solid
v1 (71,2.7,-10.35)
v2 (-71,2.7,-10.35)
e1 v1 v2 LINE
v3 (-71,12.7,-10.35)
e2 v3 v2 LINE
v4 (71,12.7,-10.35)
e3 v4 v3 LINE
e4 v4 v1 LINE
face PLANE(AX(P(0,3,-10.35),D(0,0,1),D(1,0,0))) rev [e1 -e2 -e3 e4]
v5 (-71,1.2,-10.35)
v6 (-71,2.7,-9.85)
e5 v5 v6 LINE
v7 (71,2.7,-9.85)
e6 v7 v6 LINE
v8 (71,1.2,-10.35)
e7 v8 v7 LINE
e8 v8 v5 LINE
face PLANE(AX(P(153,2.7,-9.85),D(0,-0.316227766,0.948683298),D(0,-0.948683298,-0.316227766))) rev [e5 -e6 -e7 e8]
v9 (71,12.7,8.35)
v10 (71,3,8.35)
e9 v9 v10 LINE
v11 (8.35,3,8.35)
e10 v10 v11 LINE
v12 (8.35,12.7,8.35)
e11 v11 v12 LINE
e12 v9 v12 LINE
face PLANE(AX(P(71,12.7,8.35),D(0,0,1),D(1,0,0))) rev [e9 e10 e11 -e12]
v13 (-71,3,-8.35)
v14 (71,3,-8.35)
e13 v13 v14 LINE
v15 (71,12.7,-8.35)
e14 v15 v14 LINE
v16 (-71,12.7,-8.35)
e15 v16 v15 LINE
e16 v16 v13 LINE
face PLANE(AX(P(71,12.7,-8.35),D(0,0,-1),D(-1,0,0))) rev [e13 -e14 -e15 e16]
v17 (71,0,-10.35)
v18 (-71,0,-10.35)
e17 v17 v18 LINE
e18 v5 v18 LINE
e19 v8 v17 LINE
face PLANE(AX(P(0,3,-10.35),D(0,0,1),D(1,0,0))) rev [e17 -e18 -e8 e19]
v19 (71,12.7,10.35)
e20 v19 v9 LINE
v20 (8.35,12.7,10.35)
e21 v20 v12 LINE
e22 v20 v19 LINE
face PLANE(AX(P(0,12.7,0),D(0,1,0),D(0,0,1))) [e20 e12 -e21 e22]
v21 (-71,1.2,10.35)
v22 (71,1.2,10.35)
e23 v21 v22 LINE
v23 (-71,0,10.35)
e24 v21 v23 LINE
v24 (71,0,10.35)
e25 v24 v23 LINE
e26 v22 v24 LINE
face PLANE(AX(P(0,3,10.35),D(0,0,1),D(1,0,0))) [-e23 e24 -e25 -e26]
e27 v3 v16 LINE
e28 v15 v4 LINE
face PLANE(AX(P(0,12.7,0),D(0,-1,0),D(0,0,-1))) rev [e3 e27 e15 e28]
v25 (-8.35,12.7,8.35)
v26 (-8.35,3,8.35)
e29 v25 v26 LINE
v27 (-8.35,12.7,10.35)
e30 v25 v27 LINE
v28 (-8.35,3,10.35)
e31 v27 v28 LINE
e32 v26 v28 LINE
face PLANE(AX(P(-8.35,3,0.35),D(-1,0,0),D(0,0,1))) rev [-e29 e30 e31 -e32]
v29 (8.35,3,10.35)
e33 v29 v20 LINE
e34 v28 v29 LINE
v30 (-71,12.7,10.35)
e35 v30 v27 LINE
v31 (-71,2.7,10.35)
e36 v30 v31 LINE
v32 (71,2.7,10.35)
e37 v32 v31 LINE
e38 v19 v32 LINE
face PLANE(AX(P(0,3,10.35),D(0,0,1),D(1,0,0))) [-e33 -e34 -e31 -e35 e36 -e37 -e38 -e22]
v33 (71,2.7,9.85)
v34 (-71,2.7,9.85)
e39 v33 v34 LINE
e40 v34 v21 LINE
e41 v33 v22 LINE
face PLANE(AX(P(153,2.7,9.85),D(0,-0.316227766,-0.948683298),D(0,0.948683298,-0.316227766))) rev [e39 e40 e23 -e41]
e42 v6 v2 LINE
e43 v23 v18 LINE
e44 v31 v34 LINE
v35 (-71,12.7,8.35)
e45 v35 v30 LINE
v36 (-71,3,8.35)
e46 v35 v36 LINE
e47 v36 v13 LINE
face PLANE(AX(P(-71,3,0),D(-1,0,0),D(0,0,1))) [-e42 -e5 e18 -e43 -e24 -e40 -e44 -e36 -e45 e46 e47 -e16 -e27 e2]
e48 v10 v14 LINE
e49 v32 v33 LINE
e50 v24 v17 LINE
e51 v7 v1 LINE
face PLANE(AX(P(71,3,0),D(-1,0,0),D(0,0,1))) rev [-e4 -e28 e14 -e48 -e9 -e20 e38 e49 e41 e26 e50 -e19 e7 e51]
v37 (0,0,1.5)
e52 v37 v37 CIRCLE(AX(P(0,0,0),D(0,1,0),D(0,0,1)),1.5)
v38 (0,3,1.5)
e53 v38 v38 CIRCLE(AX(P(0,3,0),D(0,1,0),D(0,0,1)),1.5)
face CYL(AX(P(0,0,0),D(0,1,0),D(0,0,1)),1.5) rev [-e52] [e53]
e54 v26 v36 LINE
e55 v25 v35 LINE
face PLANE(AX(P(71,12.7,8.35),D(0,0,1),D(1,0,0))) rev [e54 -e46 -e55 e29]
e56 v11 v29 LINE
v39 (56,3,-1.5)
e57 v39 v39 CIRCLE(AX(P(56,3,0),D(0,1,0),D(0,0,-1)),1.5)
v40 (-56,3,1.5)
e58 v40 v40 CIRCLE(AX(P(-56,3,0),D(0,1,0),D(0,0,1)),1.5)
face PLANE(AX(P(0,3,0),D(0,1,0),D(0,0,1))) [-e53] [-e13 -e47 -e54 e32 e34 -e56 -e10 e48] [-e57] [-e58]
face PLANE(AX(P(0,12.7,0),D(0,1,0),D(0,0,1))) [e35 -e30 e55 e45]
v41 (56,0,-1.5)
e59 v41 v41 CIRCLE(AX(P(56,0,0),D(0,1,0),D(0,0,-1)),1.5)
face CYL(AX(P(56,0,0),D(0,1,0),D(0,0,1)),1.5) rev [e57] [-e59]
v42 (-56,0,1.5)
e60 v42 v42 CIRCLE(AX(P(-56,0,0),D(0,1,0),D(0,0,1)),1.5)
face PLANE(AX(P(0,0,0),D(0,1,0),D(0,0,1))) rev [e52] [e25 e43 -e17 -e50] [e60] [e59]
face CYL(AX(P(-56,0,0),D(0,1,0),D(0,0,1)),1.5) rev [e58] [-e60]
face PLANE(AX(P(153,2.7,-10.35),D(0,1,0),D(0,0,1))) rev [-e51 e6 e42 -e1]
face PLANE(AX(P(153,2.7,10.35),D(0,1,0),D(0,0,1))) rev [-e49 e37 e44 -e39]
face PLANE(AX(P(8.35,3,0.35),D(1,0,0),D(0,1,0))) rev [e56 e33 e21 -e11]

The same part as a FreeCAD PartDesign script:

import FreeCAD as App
import Part
import Sketcher
from FreeCAD import Vector
Q = App.Units.Quantity

doc = App.newDocument("Part")
body = doc.addObject("PartDesign::Body", "Body")

# Sketch on XZ plane
sketch1 = body.newObject("Sketcher::SketchObject", "Sketch")
sketch1.AttachmentSupport = (doc.getObject("XZ_Plane"), [""])
sketch1.MapMode = "FlatFace"
sketch1.addGeometry([
    Part.LineSegment(Vector(-71, -10.35, 0), Vector(-71, 10.35, 0)),
    Part.LineSegment(Vector(-71, 10.35, 0), Vector(71, 10.35, 0)),
    Part.LineSegment(Vector(71, 10.35, 0), Vector(71, -10.35, 0)),
    Part.LineSegment(Vector(71, -10.35, 0), Vector(-71, -10.35, 0)),
], False)
sketch1.addConstraint([
    Sketcher.Constraint("Coincident", 0, 2, 1, 1),
    Sketcher.Constraint("Coincident", 1, 2, 2, 1),
    Sketcher.Constraint("Coincident", 2, 2, 3, 1),
    Sketcher.Constraint("Coincident", 3, 2, 0, 1),
    Sketcher.Constraint("Vertical", 0),
    Sketcher.Constraint("Horizontal", 1),
    Sketcher.Constraint("Vertical", 2),
    Sketcher.Constraint("Horizontal", 3),
    Sketcher.Constraint("Symmetric", 0, 2, 2, 2, -1, 1),
    Sketcher.Constraint("DistanceX", 1, 1, 1, 2, Q("142 mm")),
    Sketcher.Constraint("DistanceY", 0, 1, 0, 2, Q("20.7 mm")),
])
pad1 = body.newObject("PartDesign::Pad", "Pad")
pad1.Profile = sketch1
pad1.Length = 3
pad1.Reversed = True

# Sketch on XZ plane
sketch2 = body.newObject("Sketcher::SketchObject", "Sketch001")
sketch2.AttachmentSupport = (doc.getObject("XZ_Plane"), [""])
sketch2.MapMode = "FlatFace"
sketch2.AttachmentOffset = App.Placement(Vector(0, 0, -3), App.Rotation())
sketch2.addGeometry([
    Part.Circle(Vector(-56, 0, 0), Vector(0, 0, 1), 1.5),
    Part.Circle(Vector(0, 0, 0), Vector(0, 0, 1), 1.5),
    Part.Circle(Vector(56, 0, 0), Vector(0, 0, 1), 1.5),
], False)
sketch2.addConstraint([
    Sketcher.Constraint("Coincident", 1, 3, -1, 1),
    Sketcher.Constraint("Equal", 0, 1),
    Sketcher.Constraint("Equal", 1, 2),
    Sketcher.Constraint("Symmetric", 0, 3, 2, 3, -1, 1),
    Sketcher.Constraint("PointOnObject", 0, 3, -1),
    Sketcher.Constraint("Diameter", 0, Q("3 mm")),
    Sketcher.Constraint("DistanceX", 0, 3, -1, 1, Q("56 mm")),
])
pocket1 = body.newObject("PartDesign::Pocket", "Pocket")
pocket1.Profile = sketch2
pocket1.Length = 3
pocket1.Reversed = True

# Sketch on XZ plane
sketch3 = body.newObject("Sketcher::SketchObject", "Sketch002")
sketch3.AttachmentSupport = (doc.getObject("XZ_Plane"), [""])
sketch3.MapMode = "FlatFace"
sketch3.AttachmentOffset = App.Placement(Vector(0, 0, -3), App.Rotation())
sketch3.addGeometry([
    Part.LineSegment(Vector(-71, -10.35, 0), Vector(-71, -8.35, 0)),  # 0
    Part.LineSegment(Vector(-71, -8.35, 0), Vector(71, -8.35, 0)),  # 1
    Part.LineSegment(Vector(71, -8.35, 0), Vector(71, -10.35, 0)),  # 2
    Part.LineSegment(Vector(71, -10.35, 0), Vector(-71, -10.35, 0)),  # 3
    Part.LineSegment(Vector(-71, 8.35, 0), Vector(-71, 10.35, 0)),  # 4
    Part.LineSegment(Vector(-71, 10.35, 0), Vector(71, 10.35, 0)),  # 5
    Part.LineSegment(Vector(71, 10.35, 0), Vector(71, 8.35, 0)),  # 6
    Part.LineSegment(Vector(71, 8.35, 0), Vector(-71, 8.35, 0)),  # 7
], False)
sketch3.addConstraint([
    Sketcher.Constraint("Coincident", 0, 2, 1, 1),
    Sketcher.Constraint("Coincident", 1, 2, 2, 1),
    Sketcher.Constraint("Coincident", 2, 2, 3, 1),
    Sketcher.Constraint("Coincident", 3, 2, 0, 1),
    Sketcher.Constraint("Coincident", 4, 2, 5, 1),
    Sketcher.Constraint("Coincident", 5, 2, 6, 1),
    Sketcher.Constraint("Coincident", 6, 2, 7, 1),
    Sketcher.Constraint("Coincident", 7, 2, 4, 1),
    Sketcher.Constraint("Vertical", 0),
    Sketcher.Constraint("Horizontal", 1),
    Sketcher.Constraint("Vertical", 2),
    Sketcher.Constraint("Horizontal", 3),
    Sketcher.Constraint("Vertical", 4),
    Sketcher.Constraint("Horizontal", 5),
    Sketcher.Constraint("Vertical", 6),
    Sketcher.Constraint("Horizontal", 7),
    Sketcher.Constraint("Symmetric", 2, 2, 4, 2, -1, 1),
    Sketcher.Constraint("Symmetric", 0, 2, 6, 2, -1, 1),
    Sketcher.Constraint("Vertical", 3, 2, 4, 2),
    Sketcher.Constraint("DistanceX", 1, 1, 1, 2, Q("142 mm")),
    Sketcher.Constraint("DistanceY", 0, 1, 0, 2, Q("2 mm")),
    Sketcher.Constraint("DistanceY", 0, 2, 4, 2, Q("18.7 mm")),
])
pad2 = body.newObject("PartDesign::Pad", "Pad001")
pad2.Profile = sketch3
pad2.Length = 9.7
pad2.Reversed = True

# Sketch on YZ plane
sketch4 = body.newObject("Sketcher::SketchObject", "Sketch003")
sketch4.AttachmentSupport = (doc.getObject("YZ_Plane"), [""])
sketch4.MapMode = "FlatFace"
sketch4.AttachmentOffset = App.Placement(Vector(0, 0, -71), App.Rotation())
sketch4.addGeometry([
    Part.LineSegment(Vector(2.7, -9.85, 0), Vector(2.7, -10.35, 0)),  # 0
    Part.LineSegment(Vector(2.7, -10.35, 0), Vector(1.2, -10.35, 0)),  # 1
    Part.LineSegment(Vector(1.2, -10.35, 0), Vector(2.7, -9.85, 0)),  # 2
    Part.LineSegment(Vector(2.7, 10.35, 0), Vector(2.7, 9.85, 0)),  # 3
    Part.LineSegment(Vector(2.7, 9.85, 0), Vector(1.2, 10.35, 0)),  # 4
    Part.LineSegment(Vector(1.2, 10.35, 0), Vector(2.7, 10.35, 0)),  # 5
], False)
sketch4.addConstraint([
    Sketcher.Constraint("Coincident", 0, 2, 1, 1),
    Sketcher.Constraint("Coincident", 1, 2, 2, 1),
    Sketcher.Constraint("Coincident", 2, 2, 0, 1),
    Sketcher.Constraint("Coincident", 3, 2, 4, 1),
    Sketcher.Constraint("Coincident", 4, 2, 5, 1),
    Sketcher.Constraint("Coincident", 5, 2, 3, 1),
    Sketcher.Constraint("Vertical", 0),
    Sketcher.Constraint("Horizontal", 1),
    Sketcher.Constraint("Vertical", 3),
    Sketcher.Constraint("Horizontal", 5),
    Sketcher.Constraint("Symmetric", 2, 2, 3, 2, -1),
    Sketcher.Constraint("Symmetric", 1, 2, 4, 2, -1),
    Sketcher.Constraint("DistanceX", 1, 2, 1, 1, Q("1.5 mm")),
    Sketcher.Constraint("DistanceY", 0, 2, 0, 1, Q("0.5 mm")),
    Sketcher.Constraint("DistanceX", -1, 1, 0, 2, Q("2.7 mm")),
    Sketcher.Constraint("DistanceY", 2, 2, 3, 2, Q("19.7 mm")),
])
pocket2 = body.newObject("PartDesign::Pocket", "Pocket001")
pocket2.Profile = sketch4
pocket2.Length = 224
pocket2.Reversed = True

# Sketch on XY plane
sketch5 = body.newObject("Sketcher::SketchObject", "Sketch004")
sketch5.AttachmentSupport = (doc.getObject("XY_Plane"), [""])
sketch5.MapMode = "FlatFace"
sketch5.AttachmentOffset = App.Placement(Vector(0, 0, 10.35), App.Rotation())
sketch5.addGeometry([
    Part.LineSegment(Vector(-8.35, 12.7, 0), Vector(-8.35, 3, 0)),
    Part.LineSegment(Vector(-8.35, 3, 0), Vector(8.35, 3, 0)),
    Part.LineSegment(Vector(8.35, 3, 0), Vector(8.35, 12.7, 0)),
    Part.LineSegment(Vector(8.35, 12.7, 0), Vector(-8.35, 12.7, 0)),
], False)
sketch5.addConstraint([
    Sketcher.Constraint("Coincident", 0, 2, 1, 1),
    Sketcher.Constraint("Coincident", 1, 2, 2, 1),
    Sketcher.Constraint("Coincident", 2, 2, 3, 1),
    Sketcher.Constraint("Coincident", 3, 2, 0, 1),
    Sketcher.Constraint("Vertical", 0),
    Sketcher.Constraint("Horizontal", 1),
    Sketcher.Constraint("Vertical", 2),
    Sketcher.Constraint("Horizontal", 3),
    Sketcher.Constraint("DistanceX", 1, 1, 1, 2, Q("16.7 mm")),
    Sketcher.Constraint("DistanceY", 0, 2, 0, 1, Q("9.7 mm")),
    Sketcher.Constraint("DistanceY", -1, 1, 0, 2, Q("3 mm")),
    Sketcher.Constraint("DistanceX", 0, 2, -1, 1, Q("8.35 mm")),
])
pocket3 = body.newObject("PartDesign::Pocket", "Pocket002")
pocket3.Profile = sketch5
pocket3.Length = 10

doc.recompute()
